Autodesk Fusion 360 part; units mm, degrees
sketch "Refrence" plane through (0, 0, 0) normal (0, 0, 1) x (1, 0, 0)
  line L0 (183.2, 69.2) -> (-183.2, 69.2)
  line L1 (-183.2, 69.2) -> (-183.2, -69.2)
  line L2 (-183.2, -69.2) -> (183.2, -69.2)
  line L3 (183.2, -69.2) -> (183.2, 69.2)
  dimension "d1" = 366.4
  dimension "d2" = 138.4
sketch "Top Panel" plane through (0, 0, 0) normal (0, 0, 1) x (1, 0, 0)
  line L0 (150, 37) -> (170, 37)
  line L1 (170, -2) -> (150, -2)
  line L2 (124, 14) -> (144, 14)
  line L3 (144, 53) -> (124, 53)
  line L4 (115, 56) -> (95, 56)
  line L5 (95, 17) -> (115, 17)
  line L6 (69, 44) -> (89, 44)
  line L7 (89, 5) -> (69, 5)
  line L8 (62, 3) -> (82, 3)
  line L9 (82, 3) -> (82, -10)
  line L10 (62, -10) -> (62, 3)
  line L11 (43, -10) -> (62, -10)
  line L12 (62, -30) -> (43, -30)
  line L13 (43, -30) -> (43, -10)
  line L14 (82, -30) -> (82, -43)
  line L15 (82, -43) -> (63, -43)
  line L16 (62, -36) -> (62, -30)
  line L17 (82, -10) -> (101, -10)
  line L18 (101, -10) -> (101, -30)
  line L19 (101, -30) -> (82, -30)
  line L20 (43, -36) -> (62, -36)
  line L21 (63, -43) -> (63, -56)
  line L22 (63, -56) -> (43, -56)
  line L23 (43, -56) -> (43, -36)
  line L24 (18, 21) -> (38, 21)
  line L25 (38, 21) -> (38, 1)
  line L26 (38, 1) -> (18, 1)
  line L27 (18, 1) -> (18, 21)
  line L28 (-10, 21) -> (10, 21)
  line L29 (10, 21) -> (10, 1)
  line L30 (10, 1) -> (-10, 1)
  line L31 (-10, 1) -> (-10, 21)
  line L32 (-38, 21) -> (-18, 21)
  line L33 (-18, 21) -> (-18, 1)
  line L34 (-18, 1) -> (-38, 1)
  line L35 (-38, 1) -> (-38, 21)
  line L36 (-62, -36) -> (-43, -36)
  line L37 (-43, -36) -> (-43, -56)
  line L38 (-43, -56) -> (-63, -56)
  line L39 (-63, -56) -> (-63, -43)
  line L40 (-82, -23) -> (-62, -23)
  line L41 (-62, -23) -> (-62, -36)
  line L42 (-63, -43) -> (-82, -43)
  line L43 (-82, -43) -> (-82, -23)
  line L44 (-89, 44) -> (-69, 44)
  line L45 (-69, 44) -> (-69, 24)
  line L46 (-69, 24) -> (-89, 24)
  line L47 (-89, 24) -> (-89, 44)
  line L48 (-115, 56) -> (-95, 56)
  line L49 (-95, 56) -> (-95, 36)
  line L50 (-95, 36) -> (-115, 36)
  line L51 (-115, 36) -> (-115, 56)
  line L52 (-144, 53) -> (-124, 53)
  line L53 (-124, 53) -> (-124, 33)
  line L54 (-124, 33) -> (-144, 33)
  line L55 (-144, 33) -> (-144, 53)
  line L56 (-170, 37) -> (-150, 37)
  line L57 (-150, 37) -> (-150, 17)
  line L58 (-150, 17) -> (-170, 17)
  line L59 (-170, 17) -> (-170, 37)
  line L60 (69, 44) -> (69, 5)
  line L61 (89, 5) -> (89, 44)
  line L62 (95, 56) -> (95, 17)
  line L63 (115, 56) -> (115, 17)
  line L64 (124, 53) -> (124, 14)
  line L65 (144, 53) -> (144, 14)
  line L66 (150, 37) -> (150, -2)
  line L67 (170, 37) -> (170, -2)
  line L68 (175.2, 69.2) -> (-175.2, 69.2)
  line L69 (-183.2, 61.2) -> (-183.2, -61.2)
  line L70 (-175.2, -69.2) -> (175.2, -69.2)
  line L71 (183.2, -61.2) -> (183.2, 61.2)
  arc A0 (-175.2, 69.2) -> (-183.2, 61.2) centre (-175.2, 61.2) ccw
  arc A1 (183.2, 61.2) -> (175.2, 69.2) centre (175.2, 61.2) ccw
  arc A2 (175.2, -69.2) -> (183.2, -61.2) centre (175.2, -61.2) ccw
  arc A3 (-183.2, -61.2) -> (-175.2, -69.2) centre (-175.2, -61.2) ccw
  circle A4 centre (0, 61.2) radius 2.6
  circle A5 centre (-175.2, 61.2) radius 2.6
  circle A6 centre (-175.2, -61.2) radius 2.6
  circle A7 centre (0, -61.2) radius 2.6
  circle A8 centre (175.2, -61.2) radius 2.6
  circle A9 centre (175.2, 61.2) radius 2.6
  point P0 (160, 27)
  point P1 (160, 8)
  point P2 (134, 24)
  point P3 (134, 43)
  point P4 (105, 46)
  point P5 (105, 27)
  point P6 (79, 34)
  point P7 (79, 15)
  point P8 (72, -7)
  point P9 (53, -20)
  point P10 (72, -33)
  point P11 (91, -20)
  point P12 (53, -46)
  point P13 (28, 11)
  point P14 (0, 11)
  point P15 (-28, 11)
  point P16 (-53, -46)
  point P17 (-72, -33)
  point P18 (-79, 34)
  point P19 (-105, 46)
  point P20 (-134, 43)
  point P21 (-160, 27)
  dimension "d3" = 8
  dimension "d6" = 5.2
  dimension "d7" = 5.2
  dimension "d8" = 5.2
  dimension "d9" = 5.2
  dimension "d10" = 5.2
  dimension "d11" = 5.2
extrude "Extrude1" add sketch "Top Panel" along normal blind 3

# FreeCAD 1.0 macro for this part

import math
import FreeCAD as App
import Part
import Sketcher

V = App.Vector

doc = App.newDocument("Part")
body = doc.addObject("PartDesign::Body", "Body")

sketch1 = body.newObject("Sketcher::SketchObject", "Sketch")
sketch1.AttachmentSupport = (doc.getObject("XY_Plane"), [""])
sketch1.MapMode = "FlatFace"
sketch1.addGeometry([
    Part.ArcOfCircle(Part.Circle(V(175.2, 61.2, 0), V(0, 0, 1), 8), math.radians(0), math.radians(90)),
    Part.LineSegment(V(175.2, 69.2, 0), V(-175.2, 69.2, 0)),
    Part.ArcOfCircle(Part.Circle(V(-175.2, 61.2, 0), V(0, 0, 1), 8), math.radians(90), math.radians(180)),
    Part.LineSegment(V(-183.2, 61.2, 0), V(-183.2, -61.2, 0)),
    Part.ArcOfCircle(Part.Circle(V(-175.2, -61.2, 0), V(0, 0, 1), 8), math.radians(180), math.radians(270)),
    Part.LineSegment(V(-175.2, -69.2, 0), V(175.2, -69.2, 0)),
    Part.ArcOfCircle(Part.Circle(V(175.2, -61.2, 0), V(0, 0, 1), 8), math.radians(-90), math.radians(0)),
    Part.LineSegment(V(183.2, -61.2, 0), V(183.2, 61.2, 0)),
    Part.Circle(V(-175.2, -61.2, 0), V(0, 0, 1), 2.6),
    Part.LineSegment(V(-62, -23, 0), V(-62, -36, 0)),
    Part.LineSegment(V(-62, -36, 0), V(-43, -36, 0)),
    Part.LineSegment(V(-43, -36, 0), V(-43, -56, 0)),
    Part.LineSegment(V(-43, -56, 0), V(-63, -56, 0)),
    Part.LineSegment(V(-63, -56, 0), V(-63, -43, 0)),
    Part.LineSegment(V(-63, -43, 0), V(-82, -43, 0)),
    Part.LineSegment(V(-82, -43, 0), V(-82, -23, 0)),
    Part.LineSegment(V(-82, -23, 0), V(-62, -23, 0)),
    Part.Circle(V(0, -61.2, 0), V(0, 0, 1), 2.6),
    Part.Circle(V(175.2, -61.2, 0), V(0, 0, 1), 2.6),
    Part.LineSegment(V(62, -10, 0), V(62, 3, 0)),
    Part.LineSegment(V(62, 3, 0), V(82, 3, 0)),
    Part.LineSegment(V(82, 3, 0), V(82, -10, 0)),
    Part.LineSegment(V(82, -10, 0), V(101, -10, 0)),
    Part.LineSegment(V(101, -10, 0), V(101, -30, 0)),
    Part.LineSegment(V(101, -30, 0), V(82, -30, 0)),
    Part.LineSegment(V(82, -30, 0), V(82, -43, 0)),
    Part.LineSegment(V(82, -43, 0), V(63, -43, 0)),
    Part.LineSegment(V(63, -43, 0), V(63, -56, 0)),
    Part.LineSegment(V(63, -56, 0), V(43, -56, 0)),
    Part.LineSegment(V(43, -56, 0), V(43, -36, 0)),
    Part.LineSegment(V(43, -36, 0), V(62, -36, 0)),
    Part.LineSegment(V(62, -36, 0), V(62, -30, 0)),
    Part.LineSegment(V(62, -30, 0), V(43, -30, 0)),
    Part.LineSegment(V(43, -30, 0), V(43, -10, 0)),
    Part.LineSegment(V(43, -10, 0), V(62, -10, 0)),
    Part.LineSegment(V(-170, 17, 0), V(-170, 37, 0)),
    Part.LineSegment(V(-170, 37, 0), V(-150, 37, 0)),
    Part.LineSegment(V(-150, 37, 0), V(-150, 17, 0)),
    Part.LineSegment(V(-150, 17, 0), V(-170, 17, 0)),
    Part.LineSegment(V(-38, 1, 0), V(-38, 21, 0)),
    Part.LineSegment(V(-38, 21, 0), V(-18, 21, 0)),
    Part.LineSegment(V(-18, 21, 0), V(-18, 1, 0)),
    Part.LineSegment(V(-18, 1, 0), V(-38, 1, 0)),
    Part.LineSegment(V(-89, 24, 0), V(-89, 44, 0)),
    Part.LineSegment(V(-89, 44, 0), V(-69, 44, 0)),
    Part.LineSegment(V(-69, 44, 0), V(-69, 24, 0)),
    Part.LineSegment(V(-69, 24, 0), V(-89, 24, 0)),
    Part.LineSegment(V(-144, 33, 0), V(-144, 53, 0)),
    Part.LineSegment(V(-144, 53, 0), V(-124, 53, 0)),
    Part.LineSegment(V(-124, 53, 0), V(-124, 33, 0)),
    Part.LineSegment(V(-124, 33, 0), V(-144, 33, 0)),
    Part.LineSegment(V(-115, 36, 0), V(-115, 56, 0)),
    Part.LineSegment(V(-115, 56, 0), V(-95, 56, 0)),
    Part.LineSegment(V(-95, 56, 0), V(-95, 36, 0)),
    Part.LineSegment(V(-95, 36, 0), V(-115, 36, 0)),
    Part.Circle(V(-175.2, 61.2, 0), V(0, 0, 1), 2.6),
    Part.LineSegment(V(-10, 1, 0), V(-10, 21, 0)),
    Part.LineSegment(V(-10, 21, 0), V(10, 21, 0)),
    Part.LineSegment(V(10, 21, 0), V(10, 1, 0)),
    Part.LineSegment(V(10, 1, 0), V(-10, 1, 0)),
    Part.LineSegment(V(18, 1, 0), V(18, 21, 0)),
    Part.LineSegment(V(18, 21, 0), V(38, 21, 0)),
    Part.LineSegment(V(38, 21, 0), V(38, 1, 0)),
    Part.LineSegment(V(38, 1, 0), V(18, 1, 0)),
    Part.LineSegment(V(69, 5, 0), V(69, 44, 0)),
    Part.LineSegment(V(69, 44, 0), V(89, 44, 0)),
    Part.LineSegment(V(89, 44, 0), V(89, 5, 0)),
    Part.LineSegment(V(89, 5, 0), V(69, 5, 0)),
    Part.LineSegment(V(144, 14, 0), V(124, 14, 0)),
    Part.LineSegment(V(124, 14, 0), V(124, 53, 0)),
    Part.LineSegment(V(124, 53, 0), V(144, 53, 0)),
    Part.LineSegment(V(144, 53, 0), V(144, 14, 0)),
    Part.LineSegment(V(150, -2, 0), V(150, 37, 0)),
    Part.LineSegment(V(150, 37, 0), V(170, 37, 0)),
    Part.LineSegment(V(170, 37, 0), V(170, -2, 0)),
    Part.LineSegment(V(170, -2, 0), V(150, -2, 0)),
    Part.Circle(V(0, 61.2, 0), V(0, 0, 1), 2.6),
    Part.LineSegment(V(95, 56, 0), V(115, 56, 0)),
    Part.LineSegment(V(115, 56, 0), V(115, 17, 0)),
    Part.LineSegment(V(115, 17, 0), V(95, 17, 0)),
    Part.LineSegment(V(95, 17, 0), V(95, 56, 0)),
    Part.Circle(V(175.2, 61.2, 0), V(0, 0, 1), 2.6),
], False)
sketch1.addConstraint([
    Sketcher.Constraint("Tangent", 0, 2, 1, 1),
    Sketcher.Constraint("Tangent", 1, 2, 2, 1),
    Sketcher.Constraint("Tangent", 2, 2, 3, 1),
    Sketcher.Constraint("Tangent", 3, 2, 4, 1),
    Sketcher.Constraint("Tangent", 4, 2, 5, 1),
    Sketcher.Constraint("Tangent", 5, 2, 6, 1),
    Sketcher.Constraint("Tangent", 6, 2, 7, 1),
    Sketcher.Constraint("Tangent", 7, 2, 0, 1),
    Sketcher.Constraint("Coincident", 9, 2, 10, 1),
    Sketcher.Constraint("Coincident", 10, 2, 11, 1),
    Sketcher.Constraint("Coincident", 11, 2, 12, 1),
    Sketcher.Constraint("Coincident", 12, 2, 13, 1),
    Sketcher.Constraint("Coincident", 13, 2, 14, 1),
    Sketcher.Constraint("Coincident", 14, 2, 15, 1),
    Sketcher.Constraint("Coincident", 15, 2, 16, 1),
    Sketcher.Constraint("Coincident", 16, 2, 9, 1),
    Sketcher.Constraint("Coincident", 19, 2, 20, 1),
    Sketcher.Constraint("Coincident", 20, 2, 21, 1),
    Sketcher.Constraint("Coincident", 21, 2, 22, 1),
    Sketcher.Constraint("Coincident", 22, 2, 23, 1),
    Sketcher.Constraint("Coincident", 23, 2, 24, 1),
    Sketcher.Constraint("Coincident", 24, 2, 25, 1),
    Sketcher.Constraint("Coincident", 25, 2, 26, 1),
    Sketcher.Constraint("Coincident", 26, 2, 27, 1),
    Sketcher.Constraint("Coincident", 27, 2, 28, 1),
    Sketcher.Constraint("Coincident", 28, 2, 29, 1),
    Sketcher.Constraint("Coincident", 29, 2, 30, 1),
    Sketcher.Constraint("Coincident", 30, 2, 31, 1),
    Sketcher.Constraint("Coincident", 31, 2, 32, 1),
    Sketcher.Constraint("Coincident", 32, 2, 33, 1),
    Sketcher.Constraint("Coincident", 33, 2, 34, 1),
    Sketcher.Constraint("Coincident", 34, 2, 19, 1),
    Sketcher.Constraint("Coincident", 35, 2, 36, 1),
    Sketcher.Constraint("Coincident", 36, 2, 37, 1),
    Sketcher.Constraint("Coincident", 37, 2, 38, 1),
    Sketcher.Constraint("Coincident", 38, 2, 35, 1),
    Sketcher.Constraint("Coincident", 39, 2, 40, 1),
    Sketcher.Constraint("Coincident", 40, 2, 41, 1),
    Sketcher.Constraint("Coincident", 41, 2, 42, 1),
    Sketcher.Constraint("Coincident", 42, 2, 39, 1),
    Sketcher.Constraint("Coincident", 43, 2, 44, 1),
    Sketcher.Constraint("Coincident", 44, 2, 45, 1),
    Sketcher.Constraint("Coincident", 45, 2, 46, 1),
    Sketcher.Constraint("Coincident", 46, 2, 43, 1),
    Sketcher.Constraint("Coincident", 47, 2, 48, 1),
    Sketcher.Constraint("Coincident", 48, 2, 49, 1),
    Sketcher.Constraint("Coincident", 49, 2, 50, 1),
    Sketcher.Constraint("Coincident", 50, 2, 47, 1),
    Sketcher.Constraint("Coincident", 51, 2, 52, 1),
    Sketcher.Constraint("Coincident", 52, 2, 53, 1),
    Sketcher.Constraint("Coincident", 53, 2, 54, 1),
    Sketcher.Constraint("Coincident", 54, 2, 51, 1),
    Sketcher.Constraint("Coincident", 56, 2, 57, 1),
    Sketcher.Constraint("Coincident", 57, 2, 58, 1),
    Sketcher.Constraint("Coincident", 58, 2, 59, 1),
    Sketcher.Constraint("Coincident", 59, 2, 56, 1),
    Sketcher.Constraint("Coincident", 60, 2, 61, 1),
    Sketcher.Constraint("Coincident", 61, 2, 62, 1),
    Sketcher.Constraint("Coincident", 62, 2, 63, 1),
    Sketcher.Constraint("Coincident", 63, 2, 60, 1),
    Sketcher.Constraint("Coincident", 64, 2, 65, 1),
    Sketcher.Constraint("Coincident", 65, 2, 66, 1),
    Sketcher.Constraint("Coincident", 66, 2, 67, 1),
    Sketcher.Constraint("Coincident", 67, 2, 64, 1),
    Sketcher.Constraint("Coincident", 68, 2, 69, 1),
    Sketcher.Constraint("Coincident", 69, 2, 70, 1),
    Sketcher.Constraint("Coincident", 70, 2, 71, 1),
    Sketcher.Constraint("Coincident", 71, 2, 68, 1),
    Sketcher.Constraint("Coincident", 72, 2, 73, 1),
    Sketcher.Constraint("Coincident", 73, 2, 74, 1),
    Sketcher.Constraint("Coincident", 74, 2, 75, 1),
    Sketcher.Constraint("Coincident", 75, 2, 72, 1),
    Sketcher.Constraint("Coincident", 77, 2, 78, 1),
    Sketcher.Constraint("Coincident", 78, 2, 79, 1),
    Sketcher.Constraint("Coincident", 79, 2, 80, 1),
    Sketcher.Constraint("Coincident", 80, 2, 77, 1),
    Sketcher.Constraint("Horizontal", 1),
    Sketcher.Constraint("Vertical", 3),
    Sketcher.Constraint("Horizontal", 5),
    Sketcher.Constraint("Vertical", 7),
    Sketcher.Constraint("Vertical", 9),
    Sketcher.Constraint("Horizontal", 10),
    Sketcher.Constraint("Vertical", 11),
    Sketcher.Constraint("Horizontal", 12),
    Sketcher.Constraint("Vertical", 13),
    Sketcher.Constraint("Horizontal", 14),
    Sketcher.Constraint("Vertical", 15),
    Sketcher.Constraint("Horizontal", 16),
    Sketcher.Constraint("Vertical", 19),
    Sketcher.Constraint("Horizontal", 20),
    Sketcher.Constraint("Vertical", 21),
    Sketcher.Constraint("Horizontal", 22),
    Sketcher.Constraint("Vertical", 23),
    Sketcher.Constraint("Horizontal", 24),
    Sketcher.Constraint("Vertical", 25),
    Sketcher.Constraint("Horizontal", 26),
    Sketcher.Constraint("Vertical", 27),
    Sketcher.Constraint("Horizontal", 28),
    Sketcher.Constraint("Vertical", 29),
    Sketcher.Constraint("Horizontal", 30),
    Sketcher.Constraint("Vertical", 31),
    Sketcher.Constraint("Horizontal", 32),
    Sketcher.Constraint("Vertical", 33),
    Sketcher.Constraint("Horizontal", 34),
    Sketcher.Constraint("Vertical", 35),
    Sketcher.Constraint("Horizontal", 36),
    Sketcher.Constraint("Vertical", 37),
    Sketcher.Constraint("Horizontal", 38),
    Sketcher.Constraint("Vertical", 39),
    Sketcher.Constraint("Horizontal", 40),
    Sketcher.Constraint("Vertical", 41),
    Sketcher.Constraint("Horizontal", 42),
    Sketcher.Constraint("Vertical", 43),
    Sketcher.Constraint("Horizontal", 44),
    Sketcher.Constraint("Vertical", 45),
    Sketcher.Constraint("Horizontal", 46),
    Sketcher.Constraint("Vertical", 47),
    Sketcher.Constraint("Horizontal", 48),
    Sketcher.Constraint("Vertical", 49),
    Sketcher.Constraint("Horizontal", 50),
    Sketcher.Constraint("Vertical", 51),
    Sketcher.Constraint("Horizontal", 52),
    Sketcher.Constraint("Vertical", 53),
    Sketcher.Constraint("Horizontal", 54),
    Sketcher.Constraint("Vertical", 56),
    Sketcher.Constraint("Horizontal", 57),
    Sketcher.Constraint("Vertical", 58),
    Sketcher.Constraint("Horizontal", 59),
    Sketcher.Constraint("Vertical", 60),
    Sketcher.Constraint("Horizontal", 61),
    Sketcher.Constraint("Vertical", 62),
    Sketcher.Constraint("Horizontal", 63),
    Sketcher.Constraint("Vertical", 64),
    Sketcher.Constraint("Horizontal", 65),
    Sketcher.Constraint("Vertical", 66),
    Sketcher.Constraint("Horizontal", 67),
    Sketcher.Constraint("Horizontal", 68),
    Sketcher.Constraint("Vertical", 69),
    Sketcher.Constraint("Horizontal", 70),
    Sketcher.Constraint("Vertical", 71),
    Sketcher.Constraint("Vertical", 72),
    Sketcher.Constraint("Horizontal", 73),
    Sketcher.Constraint("Vertical", 74),
    Sketcher.Constraint("Horizontal", 75),
    Sketcher.Constraint("Horizontal", 77),
    Sketcher.Constraint("Vertical", 78),
    Sketcher.Constraint("Horizontal", 79),
    Sketcher.Constraint("Vertical", 80),
    Sketcher.Constraint("Coincident", 8, 3, 4, 3),
    Sketcher.Constraint("Coincident", 18, 3, 6, 3),
    Sketcher.Constraint("Coincident", 55, 3, 2, 3),
    Sketcher.Constraint("Coincident", 81, 3, 0, 3),
    Sketcher.Constraint("Equal", 0, 2),
    Sketcher.Constraint("Equal", 2, 4),
    Sketcher.Constraint("Equal", 4, 6),
    Sketcher.Constraint("Equal", 8, 17),
    Sketcher.Constraint("Equal", 17, 18),
    Sketcher.Constraint("Equal", 18, 55),
    Sketcher.Constraint("Equal", 55, 76),
    Sketcher.Constraint("Equal", 76, 81),
    Sketcher.Constraint("Symmetric", 0, 3, 4, 3, -1, 1),
    Sketcher.Constraint("Symmetric", 17, 3, 76, 3, -1, 1),
    Sketcher.Constraint("Symmetric", 14, 2, 25, 2, -2),
    Sketcher.Constraint("Symmetric", 12, 2, 27, 2, -2),
    Sketcher.Constraint("Symmetric", 10, 2, 29, 2, -2),
    Sketcher.Constraint("Symmetric", 40, 2, 60, 2, -2),
    Sketcher.Constraint("Symmetric", 42, 2, 62, 2, -2),
    Sketcher.Constraint("Symmetric", 44, 2, 64, 2, -2),
    Sketcher.Constraint("Symmetric", 48, 2, 69, 2, -2),
    Sketcher.Constraint("Symmetric", 36, 2, 72, 2, -2),
    Sketcher.Constraint("Symmetric", 51, 2, 77, 2, -2),
    Sketcher.Constraint("PointOnObject", 17, 3, -2),
    Sketcher.Constraint("Horizontal", 8, 3, 17, 3),
    Sketcher.Constraint("Horizontal", 24, 2, 31, 2),
    Sketcher.Constraint("Horizontal", 22, 2, 33, 2),
    Sketcher.Constraint("Horizontal", 40, 2, 56, 2),
    Sketcher.Constraint("Horizontal", 42, 2, 58, 2),
    Sketcher.Constraint("Horizontal", 38, 2, 78, 2),
    Sketcher.Constraint("Vertical", 21, 2, 24, 2),
    Sketcher.Constraint("Vertical", 19, 2, 30, 2),
    Sketcher.Constraint("Vertical", 29, 2, 32, 2),
    Sketcher.Constraint("Equal", 10, 14),
    Sketcher.Constraint("Equal", 16, 20),
    Sketcher.Constraint("Equal", 14, 22),
    Sketcher.Constraint("Equal", 28, 36),
    Sketcher.Constraint("Equal", 38, 40),
    Sketcher.Constraint("Equal", 42, 44),
    Sketcher.Constraint("Equal", 46, 48),
    Sketcher.Constraint("Equal", 50, 52),
    Sketcher.Constraint("Equal", 54, 57),
    Sketcher.Constraint("Equal", 63, 65),
    Sketcher.Constraint("Equal", 67, 68),
    Sketcher.Constraint("Equal", 70, 73),
    Sketcher.Constraint("Equal", 75, 77),
    Sketcher.Constraint("Equal", 79, 11),
    Sketcher.Constraint("Equal", 9, 13),
    Sketcher.Constraint("Equal", 13, 19),
    Sketcher.Constraint("Equal", 15, 23),
    Sketcher.Constraint("Equal", 21, 25),
    Sketcher.Constraint("Equal", 33, 35),
    Sketcher.Constraint("Equal", 37, 39),
    Sketcher.Constraint("Equal", 41, 43),
    Sketcher.Constraint("Equal", 45, 47),
    Sketcher.Constraint("Equal", 49, 51),
    Sketcher.Constraint("Equal", 66, 69),
    Sketcher.Constraint("Equal", 71, 72),
    Sketcher.Constraint("Equal", 74, 78),
    Sketcher.Constraint("Radius", 0, 8.0),
    Sketcher.Constraint("Diameter", 8, 5.2),
    Sketcher.Constraint("DistanceX", 10, 1, 10, 2, 19.0),
    Sketcher.Constraint("DistanceX", 12, 2, 12, 1, 20.0),
    Sketcher.Constraint("DistanceY", 9, 2, 9, 1, 13.0),
    Sketcher.Constraint("DistanceY", 64, 1, 64, 2, 39.0),
    Sketcher.Constraint("DistanceX", 1, 2, 1, 1, 350.4),
    Sketcher.Constraint("DistanceY", 3, 2, 3, 1, 122.4),
    Sketcher.Constraint("DistanceX", 9, 2, -1, 1, 62.0),
    Sketcher.Constraint("DistanceY", 9, 2, -1, 1, 36.0),
    Sketcher.Constraint("DistanceX", 35, 2, -1, 1, 170.0),
    Sketcher.Constraint("DistanceY", -1, 1, 35, 2, 37.0),
    Sketcher.Constraint("DistanceX", 39, 2, -1, 1, 38.0),
    Sketcher.Constraint("DistanceY", -1, 1, 39, 2, 21.0),
    Sketcher.Constraint("DistanceX", 43, 2, -1, 1, 89.0),
    Sketcher.Constraint("DistanceY", -1, 1, 43, 2, 44.0),
    Sketcher.Constraint("DistanceX", 47, 2, -1, 1, 144.0),
    Sketcher.Constraint("DistanceY", -1, 1, 47, 2, 53.0),
    Sketcher.Constraint("DistanceX", 51, 2, -1, 1, 115.0),
    Sketcher.Constraint("DistanceX", 56, 2, -1, 1, 10.0),
])
pad1 = body.newObject("PartDesign::Pad", "Pad")
pad1.Profile = sketch1
pad1.Length = 3

doc.recompute()
